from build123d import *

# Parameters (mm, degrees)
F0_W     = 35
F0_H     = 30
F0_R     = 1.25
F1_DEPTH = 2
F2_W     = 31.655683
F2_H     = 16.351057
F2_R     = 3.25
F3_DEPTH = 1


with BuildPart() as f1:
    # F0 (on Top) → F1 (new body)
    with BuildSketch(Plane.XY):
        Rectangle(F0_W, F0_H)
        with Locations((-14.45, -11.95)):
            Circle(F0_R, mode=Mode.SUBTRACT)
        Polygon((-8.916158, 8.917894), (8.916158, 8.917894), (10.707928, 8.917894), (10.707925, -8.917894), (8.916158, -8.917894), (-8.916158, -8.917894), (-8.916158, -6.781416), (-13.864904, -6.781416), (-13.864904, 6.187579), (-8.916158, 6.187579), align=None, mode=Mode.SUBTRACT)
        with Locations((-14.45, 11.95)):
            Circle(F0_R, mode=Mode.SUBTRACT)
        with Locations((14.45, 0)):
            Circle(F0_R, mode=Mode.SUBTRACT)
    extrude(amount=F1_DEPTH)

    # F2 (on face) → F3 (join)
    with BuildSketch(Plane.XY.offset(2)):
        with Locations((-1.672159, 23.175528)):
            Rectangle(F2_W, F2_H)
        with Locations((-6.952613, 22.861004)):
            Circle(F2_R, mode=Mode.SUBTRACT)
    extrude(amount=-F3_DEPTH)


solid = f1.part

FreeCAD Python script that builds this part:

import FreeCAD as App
import Part
import Sketcher
from FreeCAD import Vector
Q = App.Units.Quantity


def add_polygon(sketch, points):
    """Adds a closed chain of lines whose ends are joined by coincident constraints."""
    first, n = sketch.GeometryCount, len(points)
    for a, b in zip(points, points[1:] + points[:1]):
        sketch.addGeometry(Part.LineSegment(App.Vector(*a, 0), App.Vector(*b, 0)), False)
    for i in range(n):
        sketch.addConstraint(Sketcher.Constraint("Coincident", first + i, 2, first + (i + 1) % n, 1))

doc = App.newDocument("Part")
body = doc.addObject("PartDesign::Body", "Body")

sketch1 = doc.addObject("Sketcher::SketchObject", "Sketch")
body.addObject(sketch1)
sketch1.AttachmentSupport = (doc.XY_Plane, [""])
sketch1.MapMode = "FlatFace"
add_polygon(sketch1, [(-17.5, 15), (-17.5, -15), (17.5, -15), (17.5, 15)])
sketch1.addGeometry(Part.Circle(Vector(-14.4, -11.9, 0), Vector(0, 0, 1), 1.2), False)
add_polygon(sketch1, [(-8.9, 6.2), (-8.9, 8.9), (10.7, 8.9), (10.7, -8.9), (-8.9, -8.9), (-8.9, -6.8), (-13.9, -6.8), (-13.9, 6.2)])
sketch1.addGeometry(Part.Circle(Vector(-14.4, 11.9, 0), Vector(0, 0, 1), 1.2), False)
sketch1.addGeometry(Part.Circle(Vector(14.4, 0, 0), Vector(0, 0, 1), 1.2), False)
sketch1.addConstraint([
    Sketcher.Constraint("Vertical", 0),
    Sketcher.Constraint("Horizontal", 1),
    Sketcher.Constraint("Vertical", 2),
    Sketcher.Constraint("Horizontal", 3),
    Sketcher.Constraint("Vertical", 5),
    Sketcher.Constraint("Horizontal", 6),
    Sketcher.Constraint("Horizontal", 8),
    Sketcher.Constraint("Vertical", 9),
    Sketcher.Constraint("Horizontal", 10),
    Sketcher.Constraint("Vertical", 11),
    Sketcher.Constraint("Horizontal", 12),
    Sketcher.Constraint("Equal", 4, 13),
    Sketcher.Constraint("Equal", 13, 14),
    Sketcher.Constraint("Symmetric", 0, 2, 2, 2, -1, 1),
    Sketcher.Constraint("Symmetric", 4, 3, 13, 3, -1),
    Sketcher.Constraint("Symmetric", 6, 2, 7, 2, -1),
    Sketcher.Constraint("PointOnObject", 14, 3, -1),
    Sketcher.Constraint("Vertical", 5, 2, 8, 2),
    Sketcher.Constraint("Diameter", 4, Q("2.5 mm")),
    Sketcher.Constraint("DistanceX", 1, 1, 1, 2, Q("35 mm")),
    Sketcher.Constraint("DistanceY", 0, 2, 0, 1, Q("30 mm")),
    Sketcher.Constraint("DistanceY", 4, 3, 13, 3, Q("23.9 mm")),
    Sketcher.Constraint("DistanceX", 4, 3, 14, 3, Q("28.9 mm")),
    Sketcher.Constraint("DistanceX", 4, 3, -1, 1, Q("14.45 mm")),
    Sketcher.Constraint("DistanceY", 9, 1, 9, 2, Q("2.136478 mm")),
    Sketcher.Constraint("Distance", 7, Q("17.835788 mm")),
    Sketcher.Constraint("DistanceX", 6, 1, 6, 2, Q("19.624086 mm")),
    Sketcher.Constraint("DistanceX", 10, 2, 10, 1, Q("4.948746 mm")),
    Sketcher.Constraint("DistanceY", 5, 1, 5, 2, Q("2.730315 mm")),
    Sketcher.Constraint("DistanceX", -1, 1, 6, 2, Q("10.707928 mm")),
])
pad1 = doc.addObject("PartDesign::Pad", "Pad")
body.addObject(pad1)
pad1.Profile = sketch1
pad1.Length = 2

sketch2 = doc.addObject("Sketcher::SketchObject", "Sketch001")
body.addObject(sketch2)
sketch2.AttachmentSupport = (doc.XY_Plane, [""])
sketch2.MapMode = "FlatFace"
sketch2.AttachmentOffset = App.Placement(Vector(0, 0, 2), App.Rotation())
add_polygon(sketch2, [(-17.5, 31.4), (-17.5, 15), (14.2, 15), (14.2, 31.4)])
sketch2.addGeometry(Part.Circle(Vector(-7, 22.9, 0), Vector(0, 0, 1), 3.2), False)
sketch2.addConstraint([
    Sketcher.Constraint("Vertical", 0),
    Sketcher.Constraint("Horizontal", 1),
    Sketcher.Constraint("Vertical", 2),
    Sketcher.Constraint("Horizontal", 3),
    Sketcher.Constraint("Diameter", 4, Q("6.5 mm")),
    Sketcher.Constraint("DistanceY", -1, 1, 0, 2, Q("14.999999 mm")),
    Sketcher.Constraint("DistanceX", 0, 2, -1, 1, Q("17.5 mm")),
    Sketcher.Constraint("DistanceX", 1, 1, 1, 2, Q("31.655683 mm")),
    Sketcher.Constraint("DistanceY", 0, 2, 0, 1, Q("16.351057 mm")),
    Sketcher.Constraint("DistanceX", 4, 3, -1, 1, Q("6.952613 mm")),
    Sketcher.Constraint("DistanceY", -1, 1, 4, 3, Q("22.861004 mm")),
])
pad2 = doc.addObject("PartDesign::Pad", "Pad001")
body.addObject(pad2)
pad2.Profile = sketch2
pad2.Length = 1
pad2.Reversed = True

doc.recompute()
